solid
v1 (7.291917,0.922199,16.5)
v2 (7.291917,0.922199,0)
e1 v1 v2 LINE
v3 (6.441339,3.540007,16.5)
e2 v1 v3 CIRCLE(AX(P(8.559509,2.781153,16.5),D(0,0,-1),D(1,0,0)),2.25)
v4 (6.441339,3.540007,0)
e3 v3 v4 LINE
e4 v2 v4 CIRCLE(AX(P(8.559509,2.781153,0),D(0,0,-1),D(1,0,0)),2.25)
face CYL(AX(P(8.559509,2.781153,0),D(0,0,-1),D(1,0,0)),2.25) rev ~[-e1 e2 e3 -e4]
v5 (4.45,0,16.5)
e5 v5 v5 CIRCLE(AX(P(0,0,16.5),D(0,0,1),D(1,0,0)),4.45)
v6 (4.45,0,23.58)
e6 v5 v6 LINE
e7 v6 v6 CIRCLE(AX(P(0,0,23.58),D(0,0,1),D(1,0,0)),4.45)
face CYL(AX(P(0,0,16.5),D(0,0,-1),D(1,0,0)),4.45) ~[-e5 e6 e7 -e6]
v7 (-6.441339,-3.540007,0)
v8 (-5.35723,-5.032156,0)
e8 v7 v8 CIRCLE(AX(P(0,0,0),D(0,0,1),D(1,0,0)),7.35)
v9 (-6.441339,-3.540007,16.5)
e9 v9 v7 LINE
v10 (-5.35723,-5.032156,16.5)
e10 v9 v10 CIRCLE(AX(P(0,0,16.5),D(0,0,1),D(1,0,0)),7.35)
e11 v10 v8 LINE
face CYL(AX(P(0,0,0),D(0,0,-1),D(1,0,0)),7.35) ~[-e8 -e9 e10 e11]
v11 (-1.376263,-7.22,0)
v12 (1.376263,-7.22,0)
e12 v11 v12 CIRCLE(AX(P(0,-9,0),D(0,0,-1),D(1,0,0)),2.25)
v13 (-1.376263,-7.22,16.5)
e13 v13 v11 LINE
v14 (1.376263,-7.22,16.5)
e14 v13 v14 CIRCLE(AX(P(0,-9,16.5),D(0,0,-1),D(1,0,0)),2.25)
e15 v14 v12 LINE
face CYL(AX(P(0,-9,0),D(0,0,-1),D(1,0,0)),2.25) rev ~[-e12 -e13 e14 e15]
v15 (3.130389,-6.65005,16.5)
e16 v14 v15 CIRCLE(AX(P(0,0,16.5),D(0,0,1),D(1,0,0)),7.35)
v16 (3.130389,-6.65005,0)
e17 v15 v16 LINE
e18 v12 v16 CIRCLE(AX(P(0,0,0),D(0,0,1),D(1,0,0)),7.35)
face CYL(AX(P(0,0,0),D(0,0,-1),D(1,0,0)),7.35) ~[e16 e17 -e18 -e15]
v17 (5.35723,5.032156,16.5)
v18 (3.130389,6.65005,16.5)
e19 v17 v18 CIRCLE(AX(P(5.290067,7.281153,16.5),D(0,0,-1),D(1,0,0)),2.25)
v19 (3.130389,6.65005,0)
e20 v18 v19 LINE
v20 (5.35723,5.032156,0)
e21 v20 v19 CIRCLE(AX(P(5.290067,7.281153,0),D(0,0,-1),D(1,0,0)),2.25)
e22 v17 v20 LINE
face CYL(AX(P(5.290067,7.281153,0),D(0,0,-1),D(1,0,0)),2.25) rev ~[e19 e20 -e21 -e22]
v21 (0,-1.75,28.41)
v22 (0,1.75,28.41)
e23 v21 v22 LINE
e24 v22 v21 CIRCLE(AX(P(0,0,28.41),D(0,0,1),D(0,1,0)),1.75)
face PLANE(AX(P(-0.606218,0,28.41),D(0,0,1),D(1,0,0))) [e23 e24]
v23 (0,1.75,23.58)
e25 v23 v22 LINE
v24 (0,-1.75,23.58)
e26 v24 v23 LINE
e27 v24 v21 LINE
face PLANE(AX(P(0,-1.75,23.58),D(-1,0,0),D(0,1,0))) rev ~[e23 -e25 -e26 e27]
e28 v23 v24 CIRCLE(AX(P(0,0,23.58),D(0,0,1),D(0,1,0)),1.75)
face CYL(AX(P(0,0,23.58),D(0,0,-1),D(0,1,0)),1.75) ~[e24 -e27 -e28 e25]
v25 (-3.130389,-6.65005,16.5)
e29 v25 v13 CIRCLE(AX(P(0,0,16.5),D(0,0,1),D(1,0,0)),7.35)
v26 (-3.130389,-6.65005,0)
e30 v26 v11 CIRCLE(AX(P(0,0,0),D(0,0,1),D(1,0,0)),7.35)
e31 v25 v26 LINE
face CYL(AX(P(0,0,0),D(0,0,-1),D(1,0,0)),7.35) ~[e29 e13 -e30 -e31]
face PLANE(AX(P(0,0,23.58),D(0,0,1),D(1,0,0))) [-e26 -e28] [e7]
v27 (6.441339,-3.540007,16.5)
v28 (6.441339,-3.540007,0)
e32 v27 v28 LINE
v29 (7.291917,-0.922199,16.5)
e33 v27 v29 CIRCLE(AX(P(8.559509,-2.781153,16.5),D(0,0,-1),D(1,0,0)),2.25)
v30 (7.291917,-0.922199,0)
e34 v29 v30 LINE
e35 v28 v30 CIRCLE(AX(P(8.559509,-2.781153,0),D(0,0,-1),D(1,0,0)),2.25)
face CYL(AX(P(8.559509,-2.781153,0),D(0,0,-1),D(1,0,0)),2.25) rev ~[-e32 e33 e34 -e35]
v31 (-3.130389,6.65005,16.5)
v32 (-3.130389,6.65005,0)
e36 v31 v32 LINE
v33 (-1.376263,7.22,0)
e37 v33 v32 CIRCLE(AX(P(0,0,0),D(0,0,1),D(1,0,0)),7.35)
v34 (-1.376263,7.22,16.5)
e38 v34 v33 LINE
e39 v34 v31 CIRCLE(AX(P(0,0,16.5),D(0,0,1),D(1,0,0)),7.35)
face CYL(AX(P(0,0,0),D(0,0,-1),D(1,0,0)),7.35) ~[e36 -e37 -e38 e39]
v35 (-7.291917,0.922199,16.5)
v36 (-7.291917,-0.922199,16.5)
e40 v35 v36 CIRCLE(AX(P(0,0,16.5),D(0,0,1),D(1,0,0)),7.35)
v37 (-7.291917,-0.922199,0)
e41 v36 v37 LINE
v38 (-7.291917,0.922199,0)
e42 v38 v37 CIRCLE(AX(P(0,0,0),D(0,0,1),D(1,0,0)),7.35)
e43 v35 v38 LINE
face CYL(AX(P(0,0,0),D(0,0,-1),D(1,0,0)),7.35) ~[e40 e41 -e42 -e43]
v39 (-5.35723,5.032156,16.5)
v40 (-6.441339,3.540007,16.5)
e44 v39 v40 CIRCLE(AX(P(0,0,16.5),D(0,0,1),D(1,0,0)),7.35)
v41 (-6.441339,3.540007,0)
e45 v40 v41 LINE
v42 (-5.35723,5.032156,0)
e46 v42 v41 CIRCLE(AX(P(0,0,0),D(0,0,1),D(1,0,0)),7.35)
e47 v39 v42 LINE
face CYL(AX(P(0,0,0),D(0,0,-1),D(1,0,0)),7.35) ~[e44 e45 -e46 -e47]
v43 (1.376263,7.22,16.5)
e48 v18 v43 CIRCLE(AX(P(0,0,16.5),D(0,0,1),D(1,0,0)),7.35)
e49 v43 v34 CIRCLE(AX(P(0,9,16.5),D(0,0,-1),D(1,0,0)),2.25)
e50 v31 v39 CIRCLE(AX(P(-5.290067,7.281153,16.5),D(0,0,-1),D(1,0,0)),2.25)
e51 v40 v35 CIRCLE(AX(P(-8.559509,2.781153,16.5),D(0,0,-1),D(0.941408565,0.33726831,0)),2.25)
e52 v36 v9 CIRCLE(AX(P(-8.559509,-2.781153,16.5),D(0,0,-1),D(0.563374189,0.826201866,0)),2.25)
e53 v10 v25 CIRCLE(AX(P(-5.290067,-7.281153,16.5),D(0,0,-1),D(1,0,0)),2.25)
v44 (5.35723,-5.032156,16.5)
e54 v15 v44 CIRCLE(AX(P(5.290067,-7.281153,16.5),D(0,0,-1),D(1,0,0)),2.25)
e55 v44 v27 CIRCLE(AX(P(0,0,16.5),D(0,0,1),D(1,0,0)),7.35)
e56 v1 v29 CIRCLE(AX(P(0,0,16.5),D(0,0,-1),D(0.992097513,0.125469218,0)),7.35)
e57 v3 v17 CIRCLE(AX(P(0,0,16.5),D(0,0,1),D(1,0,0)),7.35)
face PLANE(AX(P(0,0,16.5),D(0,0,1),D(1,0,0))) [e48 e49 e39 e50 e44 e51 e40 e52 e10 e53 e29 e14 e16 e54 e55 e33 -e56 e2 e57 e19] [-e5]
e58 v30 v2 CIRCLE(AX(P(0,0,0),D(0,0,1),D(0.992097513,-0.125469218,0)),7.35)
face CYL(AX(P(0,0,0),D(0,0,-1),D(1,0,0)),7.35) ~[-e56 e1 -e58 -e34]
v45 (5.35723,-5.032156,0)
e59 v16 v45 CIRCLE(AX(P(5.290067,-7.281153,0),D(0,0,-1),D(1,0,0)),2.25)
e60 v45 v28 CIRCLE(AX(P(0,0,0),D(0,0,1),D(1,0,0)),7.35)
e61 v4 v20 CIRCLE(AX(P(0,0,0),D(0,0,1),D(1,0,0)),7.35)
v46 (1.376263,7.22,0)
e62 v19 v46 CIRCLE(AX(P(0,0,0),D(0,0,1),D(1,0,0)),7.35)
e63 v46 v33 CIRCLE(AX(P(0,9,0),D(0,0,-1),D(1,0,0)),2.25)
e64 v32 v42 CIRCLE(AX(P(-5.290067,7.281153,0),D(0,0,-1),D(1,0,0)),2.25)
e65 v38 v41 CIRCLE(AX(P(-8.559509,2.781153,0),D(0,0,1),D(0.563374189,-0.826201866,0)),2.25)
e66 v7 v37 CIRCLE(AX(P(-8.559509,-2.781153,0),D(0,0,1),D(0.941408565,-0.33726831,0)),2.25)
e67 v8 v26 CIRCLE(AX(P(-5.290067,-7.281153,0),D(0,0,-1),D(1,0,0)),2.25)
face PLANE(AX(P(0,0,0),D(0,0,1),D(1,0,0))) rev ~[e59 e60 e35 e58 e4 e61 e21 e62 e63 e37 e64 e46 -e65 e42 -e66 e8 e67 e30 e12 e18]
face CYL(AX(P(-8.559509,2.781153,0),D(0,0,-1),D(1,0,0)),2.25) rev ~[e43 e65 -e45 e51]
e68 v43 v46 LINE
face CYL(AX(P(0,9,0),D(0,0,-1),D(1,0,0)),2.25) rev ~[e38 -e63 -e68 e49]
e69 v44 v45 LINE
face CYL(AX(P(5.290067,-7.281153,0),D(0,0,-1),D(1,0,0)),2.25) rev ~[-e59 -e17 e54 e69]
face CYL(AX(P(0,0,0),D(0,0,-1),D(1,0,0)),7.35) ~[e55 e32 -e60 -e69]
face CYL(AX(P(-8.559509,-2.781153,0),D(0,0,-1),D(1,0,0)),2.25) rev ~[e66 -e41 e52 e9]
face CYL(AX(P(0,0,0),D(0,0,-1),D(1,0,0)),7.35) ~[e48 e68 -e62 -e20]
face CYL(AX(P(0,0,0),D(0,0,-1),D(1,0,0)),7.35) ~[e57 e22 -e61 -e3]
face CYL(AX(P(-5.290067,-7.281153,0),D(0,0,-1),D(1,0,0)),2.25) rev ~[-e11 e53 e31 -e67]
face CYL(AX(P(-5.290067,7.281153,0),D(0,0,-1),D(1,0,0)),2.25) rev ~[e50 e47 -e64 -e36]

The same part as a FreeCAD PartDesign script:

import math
import FreeCAD as App
import Part
import Sketcher

V = App.Vector

doc = App.newDocument("Part")
body = doc.addObject("PartDesign::Body", "Body")

# Sketch on XY plane
sketch1 = body.newObject("Sketcher::SketchObject", "Sketch")
sketch1.AttachmentSupport = (doc.getObject("XY_Plane"), [""])
sketch1.MapMode = "FlatFace"
sketch1.addGeometry(Part.Circle(V(0, 0, 0), V(0, 0, 1), 7.35), False)
sketch1.addConstraint(Sketcher.Constraint("Coincident", 0, 3, -1, 1))
sketch1.addConstraint(Sketcher.Constraint("Diameter", 0, 14.7))
pad1 = body.newObject("PartDesign::Pad", "Pad")
pad1.Profile = sketch1
pad1.Length = 16.5

# Sketch on XY plane
sketch2 = body.newObject("Sketcher::SketchObject", "Sketch001")
sketch2.AttachmentSupport = (doc.getObject("XY_Plane"), [""])
sketch2.MapMode = "FlatFace"
sketch2.AttachmentOffset = App.Placement(V(0, 0, 16.5), App.Rotation())
sketch2.addGeometry(Part.Circle(V(0, 0, 0), V(0, 0, 1), 4.45), False)
sketch2.addConstraint(Sketcher.Constraint("Coincident", 0, 3, -1, 1))
sketch2.addConstraint(Sketcher.Constraint("Diameter", 0, 8.9))
pad2 = body.newObject("PartDesign::Pad", "Pad001")
pad2.Profile = sketch2
pad2.Length = 7.08

# Sketch on XY plane
sketch3 = body.newObject("Sketcher::SketchObject", "Sketch002")
sketch3.AttachmentSupport = (doc.getObject("XY_Plane"), [""])
sketch3.MapMode = "FlatFace"
sketch3.AttachmentOffset = App.Placement(V(0, 0, 23.58), App.Rotation())
sketch3.addGeometry(Part.LineSegment(V(0, -1.75, 0), V(0, 1.75, 0)), False)
sketch3.addGeometry(Part.ArcOfCircle(Part.Circle(V(0, 0, 0), V(0, 0, 1), 1.75), math.radians(90), math.radians(270)), False)
sketch3.addConstraint(Sketcher.Constraint("Coincident", 0, 1, 1, 2))
sketch3.addConstraint(Sketcher.Constraint("Coincident", 1, 1, 0, 2))
sketch3.addConstraint(Sketcher.Constraint("Vertical", 0))
sketch3.addConstraint(Sketcher.Constraint("Coincident", 1, 3, -1, 1))
sketch3.addConstraint(Sketcher.Constraint("PointOnObject", 0, 1, -2))
sketch3.addConstraint(Sketcher.Constraint("Radius", 1, 1.75))
pad3 = body.newObject("PartDesign::Pad", "Pad002")
pad3.Profile = sketch3
pad3.Length = 4.83

# Sketch on XY plane
sketch4 = body.newObject("Sketcher::SketchObject", "Sketch003")
sketch4.AttachmentSupport = (doc.getObject("XY_Plane"), [""])
sketch4.MapMode = "FlatFace"
sketch4.addGeometry(Part.Circle(V(0, 9, 0), V(0, 0, 1), 2.25), False)
sketch4.addGeometry(Part.Circle(V(5.290067, 7.281153, 0), V(0, 0, 1), 2.25), False)
sketch4.addGeometry(Part.Circle(V(8.559509, 2.781153, 0), V(0, 0, 1), 2.25), False)
sketch4.addGeometry(Part.Circle(V(8.559509, -2.781153, 0), V(0, 0, 1), 2.25), False)
sketch4.addGeometry(Part.Circle(V(5.290067, -7.281153, 0), V(0, 0, 1), 2.25), False)
sketch4.addGeometry(Part.Circle(V(0, -9, 0), V(0, 0, 1), 2.25), False)
sketch4.addGeometry(Part.Circle(V(-5.290067, -7.281153, 0), V(0, 0, 1), 2.25), False)
sketch4.addGeometry(Part.Circle(V(-8.559509, -2.781153, 0), V(0, 0, 1), 2.25), False)
sketch4.addGeometry(Part.Circle(V(-8.559509, 2.781153, 0), V(0, 0, 1), 2.25), False)
sketch4.addGeometry(Part.Circle(V(-5.290067, 7.281153, 0), V(0, 0, 1), 2.25), False)
sketch4.addConstraint(Sketcher.Constraint("Equal", 0, 1))
sketch4.addConstraint(Sketcher.Constraint("Equal", 1, 2))
sketch4.addConstraint(Sketcher.Constraint("Equal", 2, 3))
sketch4.addConstraint(Sketcher.Constraint("Equal", 3, 4))
sketch4.addConstraint(Sketcher.Constraint("Equal", 4, 5))
sketch4.addConstraint(Sketcher.Constraint("Equal", 5, 6))
sketch4.addConstraint(Sketcher.Constraint("Equal", 6, 7))
sketch4.addConstraint(Sketcher.Constraint("Equal", 7, 8))
sketch4.addConstraint(Sketcher.Constraint("Equal", 8, 9))
sketch4.addConstraint(Sketcher.Constraint("Symmetric", 0, 3, 5, 3, -1, 1))
sketch4.addConstraint(Sketcher.Constraint("Symmetric", 1, 3, 6, 3, -1, 1))
sketch4.addConstraint(Sketcher.Constraint("Symmetric", 2, 3, 7, 3, -1, 1))
sketch4.addConstraint(Sketcher.Constraint("Symmetric", 3, 3, 8, 3, -1, 1))
sketch4.addConstraint(Sketcher.Constraint("Symmetric", 4, 3, 9, 3, -1, 1))
sketch4.addConstraint(Sketcher.Constraint("Symmetric", 4, 3, 6, 3, -2))
sketch4.addConstraint(Sketcher.Constraint("Symmetric", 3, 3, 7, 3, -2))
sketch4.addConstraint(Sketcher.Constraint("PointOnObject", 0, 3, -2))
sketch4.addConstraint(Sketcher.Constraint("Diameter", 0, 4.5))
sketch4.addConstraint(Sketcher.Constraint("DistanceY", -1, 1, 0, 3, 9.0))
sketch4.addConstraint(Sketcher.Constraint("DistanceY", 2, 3, 1, 3, 4.5))
sketch4.addConstraint(Sketcher.Constraint("DistanceX", -1, 1, 2, 3, 8.559509))
sketch4.addConstraint(Sketcher.Constraint("DistanceX", 1, 3, 2, 3, 3.269441))
sketch4.addConstraint(Sketcher.Constraint("DistanceY", -1, 1, 1, 3, 7.281153))
pocket1 = body.newObject("PartDesign::Pocket", "Pocket")
pocket1.Profile = sketch4
pocket1.Length = 25
pocket1.Reversed = True

# Sketch on XY plane
sketch5 = body.newObject("Sketcher::SketchObject", "Sketch004")
sketch5.AttachmentSupport = (doc.getObject("XY_Plane"), [""])
sketch5.MapMode = "FlatFace"
sketch5.addGeometry(Part.ArcOfCircle(Part.Circle(V(8.559509, 2.781153, 0), V(0, 0, 1), 2.25), math.radians(160.289468), math.radians(235.710532)), False)
sketch5.addGeometry(Part.ArcOfCircle(Part.Circle(V(0, 0, 0), V(0, 0, 1), 7.35), math.radians(7.207853), math.radians(28.792147)), False)
sketch5.addGeometry(Part.ArcOfCircle(Part.Circle(V(0, 0, 0), V(0, 0, 1), 7.35), math.radians(43.207853), math.radians(64.792147)), False)
sketch5.addGeometry(Part.ArcOfCircle(Part.Circle(V(5.290067, 7.281153, 0), V(0, 0, 1), 2.25), math.radians(0), math.radians(196.289468)), False)
sketch5.addGeometry(Part.ArcOfCircle(Part.Circle(V(5.290067, 7.281153, 0), V(0, 0, 1), 2.25), math.radians(-88.289468), math.radians(0)), False)
sketch5.addGeometry(Part.ArcOfCircle(Part.Circle(V(0, 9, 0), V(0, 0, 1), 2.25), math.radians(0), math.radians(232.289468)), False)
sketch5.addGeometry(Part.ArcOfCircle(Part.Circle(V(0, 9, 0), V(0, 0, 1), 2.25), math.radians(-52.289468), math.radians(0)), False)
sketch5.addGeometry(Part.ArcOfCircle(Part.Circle(V(0, 0, 0), V(0, 0, 1), 7.35), math.radians(79.207853), math.radians(100.792147)), False)
sketch5.addGeometry(Part.ArcOfCircle(Part.Circle(V(-5.290067, 7.281153, 0), V(0, 0, 1), 2.25), math.radians(-16.289468), math.radians(0)), False)
sketch5.addGeometry(Part.ArcOfCircle(Part.Circle(V(0, 0, 0), V(0, 0, 1), 7.35), math.radians(115.207853), math.radians(136.792147)), False)
sketch5.addGeometry(Part.ArcOfCircle(Part.Circle(V(-5.290067, 7.281153, 0), V(0, 0, 1), 2.25), math.radians(0), math.radians(268.289468)), False)
sketch5.addGeometry(Part.ArcOfCircle(Part.Circle(V(-8.559509, 2.781153, 0), V(0, 0, 1), 2.25), math.radians(19.710532), math.radians(304.289468)), False)
sketch5.addGeometry(Part.ArcOfCircle(Part.Circle(V(0, 0, 0), V(0, 0, 1), 7.35), math.radians(151.207853), math.radians(172.792147)), False)
sketch5.addGeometry(Part.ArcOfCircle(Part.Circle(V(-8.559509, -2.781153, 0), V(0, 0, 1), 2.25), math.radians(55.710532), math.radians(340.289468)), False)
sketch5.addGeometry(Part.ArcOfCircle(Part.Circle(V(0, 0, 0), V(0, 0, 1), 7.35), math.radians(-172.792147), math.radians(-151.207853)), False)
sketch5.addGeometry(Part.ArcOfCircle(Part.Circle(V(0, 0, 0), V(0, 0, 1), 7.35), math.radians(-136.792147), math.radians(-115.207853)), False)
sketch5.addGeometry(Part.ArcOfCircle(Part.Circle(V(-5.290067, -7.281153, 0), V(0, 0, 1), 2.25), math.radians(16.289468), math.radians(91.710532)), False)
sketch5.addGeometry(Part.ArcOfCircle(Part.Circle(V(0, 0, 0), V(0, 0, 1), 7.35), math.radians(-100.792147), math.radians(-79.207853)), False)
sketch5.addGeometry(Part.ArcOfCircle(Part.Circle(V(0, -9, 0), V(0, 0, 1), 2.25), math.radians(52.289468), math.radians(127.710532)), False)
sketch5.addGeometry(Part.ArcOfCircle(Part.Circle(V(5.290067, -7.281153, 0), V(0, 0, 1), 2.25), math.radians(88.289468), math.radians(163.710532)), False)
sketch5.addGeometry(Part.ArcOfCircle(Part.Circle(V(0, 0, 0), V(0, 0, 1), 7.35), math.radians(-64.792147), math.radians(-43.207853)), False)
sketch5.addGeometry(Part.ArcOfCircle(Part.Circle(V(8.559509, -2.781153, 0), V(0, 0, 1), 2.25), math.radians(124.289468), math.radians(199.710532)), False)
sketch5.addGeometry(Part.ArcOfCircle(Part.Circle(V(0, 0, 0), V(0, 0, 1), 7.35), math.radians(-28.792147), math.radians(-7.207853)), False)
sketch5.addConstraint(Sketcher.Constraint("Coincident", 0, 1, 1, 2))
sketch5.addConstraint(Sketcher.Constraint("Coincident", 1, 1, 0, 2))
sketch5.addConstraint(Sketcher.Constraint("Coincident", 2, 2, 3, 2))
sketch5.addConstraint(Sketcher.Constraint("Tangent", 3, 1, 4, 2))
sketch5.addConstraint(Sketcher.Constraint("Coincident", 4, 1, 2, 1))
sketch5.addConstraint(Sketcher.Constraint("Tangent", 5, 1, 6, 2))
sketch5.addConstraint(Sketcher.Constraint("Coincident", 6, 1, 7, 1))
sketch5.addConstraint(Sketcher.Constraint("Coincident", 7, 2, 5, 2))
sketch5.addConstraint(Sketcher.Constraint("Coincident", 8, 1, 9, 1))
sketch5.addConstraint(Sketcher.Constraint("Coincident", 9, 2, 10, 2))
sketch5.addConstraint(Sketcher.Constraint("Tangent", 10, 1, 8, 2))
sketch5.addConstraint(Sketcher.Constraint("Coincident", 11, 1, 12, 1))
sketch5.addConstraint(Sketcher.Constraint("Coincident", 12, 2, 11, 2))
sketch5.addConstraint(Sketcher.Constraint("Coincident", 13, 1, 14, 1))
sketch5.addConstraint(Sketcher.Constraint("Coincident", 14, 2, 13, 2))
sketch5.addConstraint(Sketcher.Constraint("Coincident", 15, 1, 16, 2))
sketch5.addConstraint(Sketcher.Constraint("Coincident", 16, 1, 15, 2))
sketch5.addConstraint(Sketcher.Constraint("Coincident", 17, 1, 18, 2))
sketch5.addConstraint(Sketcher.Constraint("Coincident", 18, 1, 17, 2))
sketch5.addConstraint(Sketcher.Constraint("Coincident", 19, 1, 20, 2))
sketch5.addConstraint(Sketcher.Constraint("Coincident", 20, 1, 19, 2))
sketch5.addConstraint(Sketcher.Constraint("Coincident", 21, 1, 22, 2))
sketch5.addConstraint(Sketcher.Constraint("Coincident", 22, 1, 21, 2))
sketch5.addConstraint(Sketcher.Constraint("Coincident", 1, 3, -1, 1))
sketch5.addConstraint(Sketcher.Constraint("Coincident", 2, 3, -1, 1))
sketch5.addConstraint(Sketcher.Constraint("Coincident", 7, 3, -1, 1))
sketch5.addConstraint(Sketcher.Constraint("Coincident", 9, 3, -1, 1))
sketch5.addConstraint(Sketcher.Constraint("Coincident", 12, 3, -1, 1))
sketch5.addConstraint(Sketcher.Constraint("Coincident", 14, 3, -1, 1))
sketch5.addConstraint(Sketcher.Constraint("Coincident", 15, 3, -1, 1))
sketch5.addConstraint(Sketcher.Constraint("Coincident", 17, 3, -1, 1))
sketch5.addConstraint(Sketcher.Constraint("Coincident", 20, 3, -1, 1))
sketch5.addConstraint(Sketcher.Constraint("Coincident", 22, 3, -1, 1))
sketch5.addConstraint(Sketcher.Constraint("Equal", 1, 2))
sketch5.addConstraint(Sketcher.Constraint("Equal", 0, 3))
sketch5.addConstraint(Sketcher.Constraint("Equal", 3, 4))
sketch5.addConstraint(Sketcher.Constraint("Equal", 4, 5))
sketch5.addConstraint(Sketcher.Constraint("Equal", 5, 6))
sketch5.addConstraint(Sketcher.Constraint("Equal", 2, 7))
sketch5.addConstraint(Sketcher.Constraint("Equal", 6, 8))
sketch5.addConstraint(Sketcher.Constraint("Equal", 7, 9))
sketch5.addConstraint(Sketcher.Constraint("Equal", 8, 10))
sketch5.addConstraint(Sketcher.Constraint("Equal", 10, 11))
sketch5.addConstraint(Sketcher.Constraint("Equal", 9, 12))
sketch5.addConstraint(Sketcher.Constraint("Equal", 11, 13))
sketch5.addConstraint(Sketcher.Constraint("Equal", 12, 14))
sketch5.addConstraint(Sketcher.Constraint("Equal", 14, 15))
sketch5.addConstraint(Sketcher.Constraint("Equal", 13, 16))
sketch5.addConstraint(Sketcher.Constraint("Equal", 15, 17))
sketch5.addConstraint(Sketcher.Constraint("Equal", 16, 18))
sketch5.addConstraint(Sketcher.Constraint("Equal", 18, 19))
sketch5.addConstraint(Sketcher.Constraint("Equal", 17, 20))
sketch5.addConstraint(Sketcher.Constraint("Equal", 19, 21))
sketch5.addConstraint(Sketcher.Constraint("Equal", 20, 22))
sketch5.addConstraint(Sketcher.Constraint("Symmetric", 0, 3, 13, 3, -1, 1))
sketch5.addConstraint(Sketcher.Constraint("Symmetric", 3, 3, 16, 3, -1, 1))
sketch5.addConstraint(Sketcher.Constraint("Symmetric", 5, 3, 18, 3, -1, 1))
sketch5.addConstraint(Sketcher.Constraint("Symmetric", 8, 3, 19, 3, -1, 1))
sketch5.addConstraint(Sketcher.Constraint("Symmetric", 11, 3, 21, 3, -1, 1))
sketch5.addConstraint(Sketcher.Constraint("Symmetric", 3, 3, 8, 3, -2))
sketch5.addConstraint(Sketcher.Constraint("Symmetric", 0, 3, 11, 3, -2))
sketch5.addConstraint(Sketcher.Constraint("PointOnObject", 5, 3, -2))
sketch5.addConstraint(Sketcher.Constraint("Horizontal", 10, 3, 3, 1))
sketch5.addConstraint(Sketcher.Constraint("Horizontal", 6, 3, 5, 1))
sketch5.addConstraint(Sketcher.Constraint("Horizontal", 3, 1, 10, 1))
sketch5.addConstraint(Sketcher.Constraint("Radius", 0, 2.25))
sketch5.addConstraint(Sketcher.Constraint("Radius", 1, 7.35))
sketch5.addConstraint(Sketcher.Constraint("DistanceY", -1, 1, 5, 3, 9.0))
sketch5.addConstraint(Sketcher.Constraint("DistanceY", 0, 3, 3, 3, 4.5))
sketch5.addConstraint(Sketcher.Constraint("DistanceY", -1, 1, 1, 1, 0.922199))
sketch5.addConstraint(Sketcher.Constraint("DistanceX", -1, 1, 0, 3, 8.559509))
sketch5.addConstraint(Sketcher.Constraint("DistanceX", -1, 1, 2, 2, 3.130389))
pocket2 = body.newObject("PartDesign::Pocket", "Pocket001")
pocket2.Profile = sketch5
pocket2.Length = 25
pocket2.Reversed = True

doc.recompute()
